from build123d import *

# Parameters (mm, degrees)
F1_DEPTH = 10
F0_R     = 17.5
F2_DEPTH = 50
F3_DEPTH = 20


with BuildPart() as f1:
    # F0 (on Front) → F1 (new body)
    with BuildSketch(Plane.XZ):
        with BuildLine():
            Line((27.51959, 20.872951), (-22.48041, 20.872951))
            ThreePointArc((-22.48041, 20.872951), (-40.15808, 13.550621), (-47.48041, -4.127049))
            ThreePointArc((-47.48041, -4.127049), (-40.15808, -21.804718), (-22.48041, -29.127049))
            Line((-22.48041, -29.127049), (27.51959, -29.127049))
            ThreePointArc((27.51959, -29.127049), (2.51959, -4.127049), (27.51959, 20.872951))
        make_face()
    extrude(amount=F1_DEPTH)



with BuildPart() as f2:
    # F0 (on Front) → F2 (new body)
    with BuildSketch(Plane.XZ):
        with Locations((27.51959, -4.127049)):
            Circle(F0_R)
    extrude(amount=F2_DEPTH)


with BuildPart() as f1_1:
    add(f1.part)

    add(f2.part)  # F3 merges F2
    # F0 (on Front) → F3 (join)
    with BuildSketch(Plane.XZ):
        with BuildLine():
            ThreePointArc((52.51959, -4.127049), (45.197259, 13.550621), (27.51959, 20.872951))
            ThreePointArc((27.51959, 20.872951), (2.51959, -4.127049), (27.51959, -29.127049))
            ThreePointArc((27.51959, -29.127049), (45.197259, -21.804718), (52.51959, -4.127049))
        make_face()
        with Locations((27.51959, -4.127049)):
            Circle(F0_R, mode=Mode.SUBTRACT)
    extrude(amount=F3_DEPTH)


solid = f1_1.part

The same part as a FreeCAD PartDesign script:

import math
import FreeCAD as App
import Part
import Sketcher
from FreeCAD import Vector

doc = App.newDocument("Part")
body = doc.addObject("PartDesign::Body", "Body")

# Sketch on XZ plane
sketch1 = body.newObject("Sketcher::SketchObject", "Sketch")
sketch1.AttachmentSupport = (doc.getObject("XZ_Plane"), [""])
sketch1.MapMode = "FlatFace"
sketch1.addGeometry(Part.LineSegment(Vector(27.51959, 20.872951, 0), Vector(-22.48041, 20.872951, 0)), False)
sketch1.addGeometry(Part.ArcOfCircle(Part.Circle(Vector(-22.480412, -4.127047, 0), Vector(0, 0, 1), 24.999998), math.radians(89.999996), math.radians(180.000004)), False)
sketch1.addGeometry(Part.ArcOfCircle(Part.Circle(Vector(-22.48041, -4.127049, 0), Vector(0, 0, 1), 25), math.radians(-180), math.radians(-90)), False)
sketch1.addGeometry(Part.LineSegment(Vector(-22.48041, -29.127049, 0), Vector(27.51959, -29.127049, 0)), False)
sketch1.addGeometry(Part.ArcOfCircle(Part.Circle(Vector(27.51959, -4.127049, 0), Vector(0, 0, 1), 25), math.radians(90), math.radians(270)), False)
sketch1.addConstraint(Sketcher.Constraint("Tangent", 0, 2, 1, 1))
sketch1.addConstraint(Sketcher.Constraint("Tangent", 1, 2, 2, 1))
sketch1.addConstraint(Sketcher.Constraint("Tangent", 2, 2, 3, 1))
sketch1.addConstraint(Sketcher.Constraint("Tangent", 3, 2, 4, 2))
sketch1.addConstraint(Sketcher.Constraint("Tangent", 4, 1, 0, 1))
sketch1.addConstraint(Sketcher.Constraint("Horizontal", 0))
sketch1.addConstraint(Sketcher.Constraint("Horizontal", 3))
sketch1.addConstraint(Sketcher.Constraint("Equal", 1, 2))
sketch1.addConstraint(Sketcher.Constraint("Horizontal", 4, 3, 1, 2))
sketch1.addConstraint(Sketcher.Constraint("Radius", 1, 24.999998))
sketch1.addConstraint(Sketcher.Constraint("DistanceX", 0, 2, 0, 1, 50.0))
sketch1.addConstraint(Sketcher.Constraint("DistanceX", 1, 3, -1, 1, 22.480412))
sketch1.addConstraint(Sketcher.Constraint("DistanceY", 2, 3, -1, 1, 4.127049))
pad1 = body.newObject("PartDesign::Pad", "Pad")
pad1.Profile = sketch1
pad1.Length = 10
body2 = doc.addObject("PartDesign::Body", "Body001")

# Sketch on XZ plane
sketch2 = body2.newObject("Sketcher::SketchObject", "Sketch001")
sketch2.AttachmentSupport = (doc.getObject("XZ_Plane001"), [""])
sketch2.MapMode = "FlatFace"
sketch2.addGeometry(Part.Circle(Vector(27.51959, -4.127049, 0), Vector(0, 0, 1), 17.5), False)
sketch2.addConstraint(Sketcher.Constraint("Diameter", 0, 35.0))
sketch2.addConstraint(Sketcher.Constraint("DistanceX", -1, 1, 0, 3, 27.51959))
sketch2.addConstraint(Sketcher.Constraint("DistanceY", 0, 3, -1, 1, 4.127049))
pad2 = body2.newObject("PartDesign::Pad", "Pad001")
pad2.Profile = sketch2
pad2.Length = 50
body.AllowCompound = True
doc.recompute()

boolean = body.newObject("PartDesign::Boolean", "Boolean")
boolean.Type = "Fuse"
boolean.addObjects([body2])

# Sketch on XZ plane
sketch3 = body.newObject("Sketcher::SketchObject", "Sketch002")
sketch3.AttachmentSupport = (doc.getObject("XZ_Plane"), [""])
sketch3.MapMode = "FlatFace"
sketch3.addGeometry(Part.ArcOfCircle(Part.Circle(Vector(27.51959, -4.127049, 0), Vector(0, 0, 1), 25), math.radians(0), math.radians(90)), False)
sketch3.addGeometry(Part.ArcOfCircle(Part.Circle(Vector(27.51959, -4.127049, 0), Vector(0, 0, 1), 25), math.radians(90), math.radians(270)), False)
sketch3.addGeometry(Part.ArcOfCircle(Part.Circle(Vector(27.519588, -4.127047, 0), Vector(0, 0, 1), 25.000002), math.radians(-89.999996), math.radians(-0.000004)), False)
sketch3.addGeometry(Part.Circle(Vector(27.51959, -4.127049, 0), Vector(0, 0, 1), 17.5), False)
sketch3.addConstraint(Sketcher.Constraint("Tangent", 0, 2, 1, 1))
sketch3.addConstraint(Sketcher.Constraint("Tangent", 1, 2, 2, 1))
sketch3.addConstraint(Sketcher.Constraint("Tangent", 2, 2, 0, 1))
sketch3.addConstraint(Sketcher.Constraint("Coincident", 3, 3, 0, 3))
sketch3.addConstraint(Sketcher.Constraint("Horizontal", 3, 3, 2, 2))
sketch3.addConstraint(Sketcher.Constraint("Vertical", 3, 3, 0, 2))
sketch3.addConstraint(Sketcher.Constraint("Vertical", 0, 2, 1, 2))
sketch3.addConstraint(Sketcher.Constraint("Diameter", 3, 35.0))
sketch3.addConstraint(Sketcher.Constraint("Radius", 0, 25.0))
sketch3.addConstraint(Sketcher.Constraint("DistanceX", -1, 1, 0, 3, 27.51959))
sketch3.addConstraint(Sketcher.Constraint("DistanceY", 0, 3, -1, 1, 4.127049))
pad3 = body.newObject("PartDesign::Pad", "Pad002")
pad3.Profile = sketch3
pad3.Length = 20

doc.recompute()
